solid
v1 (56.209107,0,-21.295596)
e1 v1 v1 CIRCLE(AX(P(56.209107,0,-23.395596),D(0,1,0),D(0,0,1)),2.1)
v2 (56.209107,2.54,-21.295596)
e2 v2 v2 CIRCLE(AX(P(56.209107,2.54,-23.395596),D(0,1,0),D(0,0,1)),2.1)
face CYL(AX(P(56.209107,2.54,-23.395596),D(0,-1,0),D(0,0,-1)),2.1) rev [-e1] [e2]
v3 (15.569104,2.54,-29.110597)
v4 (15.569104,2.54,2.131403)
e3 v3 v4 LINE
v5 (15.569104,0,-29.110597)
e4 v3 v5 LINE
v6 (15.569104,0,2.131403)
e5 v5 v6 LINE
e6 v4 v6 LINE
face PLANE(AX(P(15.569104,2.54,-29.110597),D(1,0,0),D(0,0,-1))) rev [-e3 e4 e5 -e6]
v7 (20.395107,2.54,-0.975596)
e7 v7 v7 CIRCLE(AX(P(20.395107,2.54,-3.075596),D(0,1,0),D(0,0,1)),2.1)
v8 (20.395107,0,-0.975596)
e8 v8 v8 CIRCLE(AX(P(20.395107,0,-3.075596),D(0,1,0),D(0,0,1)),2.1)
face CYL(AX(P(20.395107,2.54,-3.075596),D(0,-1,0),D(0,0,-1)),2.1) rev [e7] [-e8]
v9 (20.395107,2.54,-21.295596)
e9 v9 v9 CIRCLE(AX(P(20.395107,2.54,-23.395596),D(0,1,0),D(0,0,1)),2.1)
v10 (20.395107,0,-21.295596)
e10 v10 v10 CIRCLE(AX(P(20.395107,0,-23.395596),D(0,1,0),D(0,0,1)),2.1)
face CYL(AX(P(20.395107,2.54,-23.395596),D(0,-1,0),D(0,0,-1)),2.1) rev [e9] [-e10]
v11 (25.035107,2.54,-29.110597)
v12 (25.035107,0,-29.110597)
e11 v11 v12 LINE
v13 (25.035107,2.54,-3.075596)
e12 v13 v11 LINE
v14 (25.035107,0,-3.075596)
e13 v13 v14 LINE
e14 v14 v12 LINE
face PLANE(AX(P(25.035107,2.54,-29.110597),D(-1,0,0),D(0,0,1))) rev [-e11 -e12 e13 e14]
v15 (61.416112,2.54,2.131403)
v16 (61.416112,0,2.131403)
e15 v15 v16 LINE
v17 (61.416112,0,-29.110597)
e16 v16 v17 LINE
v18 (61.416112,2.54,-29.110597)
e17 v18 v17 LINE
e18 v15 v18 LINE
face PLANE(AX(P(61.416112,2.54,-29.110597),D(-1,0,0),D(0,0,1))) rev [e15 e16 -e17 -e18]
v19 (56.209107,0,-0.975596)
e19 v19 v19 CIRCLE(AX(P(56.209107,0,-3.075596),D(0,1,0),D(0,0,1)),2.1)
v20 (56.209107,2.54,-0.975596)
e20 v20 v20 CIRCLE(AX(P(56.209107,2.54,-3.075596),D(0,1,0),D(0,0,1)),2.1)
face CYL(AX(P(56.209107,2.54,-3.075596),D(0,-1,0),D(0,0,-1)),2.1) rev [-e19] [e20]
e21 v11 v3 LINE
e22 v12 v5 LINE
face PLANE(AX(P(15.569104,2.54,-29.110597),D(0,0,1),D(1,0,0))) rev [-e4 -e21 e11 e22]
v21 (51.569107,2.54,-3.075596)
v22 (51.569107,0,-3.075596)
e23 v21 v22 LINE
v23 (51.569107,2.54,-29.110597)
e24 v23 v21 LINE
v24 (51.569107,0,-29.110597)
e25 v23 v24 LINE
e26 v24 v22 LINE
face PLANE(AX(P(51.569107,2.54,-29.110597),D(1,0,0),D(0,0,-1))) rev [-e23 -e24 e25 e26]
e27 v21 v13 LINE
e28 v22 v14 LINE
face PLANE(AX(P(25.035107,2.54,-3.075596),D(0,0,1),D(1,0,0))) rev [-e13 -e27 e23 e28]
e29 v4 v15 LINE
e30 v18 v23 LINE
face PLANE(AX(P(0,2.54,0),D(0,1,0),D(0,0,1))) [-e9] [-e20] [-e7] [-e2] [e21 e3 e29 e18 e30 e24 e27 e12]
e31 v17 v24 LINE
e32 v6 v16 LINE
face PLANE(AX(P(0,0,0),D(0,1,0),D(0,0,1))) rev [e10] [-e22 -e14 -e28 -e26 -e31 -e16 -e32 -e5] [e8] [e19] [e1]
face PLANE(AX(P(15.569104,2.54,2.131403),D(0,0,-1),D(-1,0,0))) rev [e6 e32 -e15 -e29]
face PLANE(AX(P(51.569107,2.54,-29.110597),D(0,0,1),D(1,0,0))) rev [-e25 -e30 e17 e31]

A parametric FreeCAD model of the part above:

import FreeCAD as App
import Part
import Sketcher
from FreeCAD import Vector
Q = App.Units.Quantity

doc = App.newDocument("Part")
body = doc.addObject("PartDesign::Body", "Body")

# Sketch on XZ plane
sketch1 = body.newObject("Sketcher::SketchObject", "Sketch")
sketch1.AttachmentSupport = (doc.getObject("XZ_Plane"), [""])
sketch1.MapMode = "FlatFace"
sketch1.addGeometry(Part.LineSegment(Vector(25, -29.1, 0), Vector(15.6, -29.1, 0)), False)
sketch1.addGeometry(Part.LineSegment(Vector(15.6, -29.1, 0), Vector(15.6, 2.1, 0)), False)
sketch1.addGeometry(Part.LineSegment(Vector(15.6, 2.1, 0), Vector(61.4, 2.1, 0)), False)
sketch1.addGeometry(Part.LineSegment(Vector(61.4, 2.1, 0), Vector(61.4, -29.1, 0)), False)
sketch1.addGeometry(Part.LineSegment(Vector(61.4, -29.1, 0), Vector(51.6, -29.1, 0)), False)
sketch1.addGeometry(Part.LineSegment(Vector(51.6, -29.1, 0), Vector(51.6, -3.1, 0)), False)
sketch1.addGeometry(Part.LineSegment(Vector(51.6, -3.1, 0), Vector(25, -3.1, 0)), False)
sketch1.addGeometry(Part.LineSegment(Vector(25, -3.1, 0), Vector(25, -29.1, 0)), False)
sketch1.addGeometry(Part.Circle(Vector(56.2, -3.1, 0), Vector(0, 0, 1), 2.1), False)
sketch1.addGeometry(Part.Circle(Vector(20.4, -3.1, 0), Vector(0, 0, 1), 2.1), False)
sketch1.addGeometry(Part.Circle(Vector(56.2, -23.4, 0), Vector(0, 0, 1), 2.1), False)
sketch1.addGeometry(Part.Circle(Vector(20.4, -23.4, 0), Vector(0, 0, 1), 2.1), False)
sketch1.addConstraint(Sketcher.Constraint("Coincident", 0, 2, 1, 1))
sketch1.addConstraint(Sketcher.Constraint("Coincident", 1, 2, 2, 1))
sketch1.addConstraint(Sketcher.Constraint("Coincident", 2, 2, 3, 1))
sketch1.addConstraint(Sketcher.Constraint("Coincident", 3, 2, 4, 1))
sketch1.addConstraint(Sketcher.Constraint("Coincident", 4, 2, 5, 1))
sketch1.addConstraint(Sketcher.Constraint("Coincident", 5, 2, 6, 1))
sketch1.addConstraint(Sketcher.Constraint("Coincident", 6, 2, 7, 1))
sketch1.addConstraint(Sketcher.Constraint("Coincident", 7, 2, 0, 1))
sketch1.addConstraint(Sketcher.Constraint("Horizontal", 0))
sketch1.addConstraint(Sketcher.Constraint("Vertical", 1))
sketch1.addConstraint(Sketcher.Constraint("Horizontal", 2))
sketch1.addConstraint(Sketcher.Constraint("Vertical", 3))
sketch1.addConstraint(Sketcher.Constraint("Horizontal", 4))
sketch1.addConstraint(Sketcher.Constraint("Vertical", 5))
sketch1.addConstraint(Sketcher.Constraint("Horizontal", 6))
sketch1.addConstraint(Sketcher.Constraint("Vertical", 7))
sketch1.addConstraint(Sketcher.Constraint("Equal", 8, 9))
sketch1.addConstraint(Sketcher.Constraint("Equal", 9, 10))
sketch1.addConstraint(Sketcher.Constraint("Equal", 10, 11))
sketch1.addConstraint(Sketcher.Constraint("Horizontal", 8, 3, 9, 3))
sketch1.addConstraint(Sketcher.Constraint("Horizontal", 10, 3, 11, 3))
sketch1.addConstraint(Sketcher.Constraint("Horizontal", 0, 2, 3, 2))
sketch1.addConstraint(Sketcher.Constraint("Horizontal", 9, 3, 5, 2))
sketch1.addConstraint(Sketcher.Constraint("Vertical", 8, 3, 10, 3))
sketch1.addConstraint(Sketcher.Constraint("Vertical", 9, 3, 11, 3))
sketch1.addConstraint(Sketcher.Constraint("DistanceY", 1, 1, 1, 2, Q("1.23 in")))
sketch1.addConstraint(Sketcher.Constraint("DistanceY", 10, 3, 8, 3, Q("0.8 in")))
sketch1.addConstraint(Sketcher.Constraint("DistanceX", 0, 2, 10, 3, Q("1.6000001 in")))
sketch1.addConstraint(Sketcher.Constraint("Diameter", 8, 4.2))
sketch1.addConstraint(Sketcher.Constraint("DistanceY", 5, 1, 5, 2, Q("1.025 in")))
sketch1.addConstraint(Sketcher.Constraint("DistanceX", 9, 3, 8, 3, Q("1.41 in")))
sketch1.addConstraint(Sketcher.Constraint("DistanceX", 8, 3, 2, 2, Q("0.2050002 in")))
sketch1.addConstraint(Sketcher.Constraint("DistanceX", 6, 2, 6, 1, 26.534))
sketch1.addConstraint(Sketcher.Constraint("DistanceX", 4, 2, 10, 3, 4.64))
sketch1.addConstraint(Sketcher.Constraint("DistanceX", -1, 1, 2, 2, 61.416112))
sketch1.addConstraint(Sketcher.Constraint("DistanceY", 8, 3, -1, 1, 3.075596))
pad1 = body.newObject("PartDesign::Pad", "Pad")
pad1.Profile = sketch1
pad1.Length = Q("0.1 in")
pad1.Reversed = True

doc.recompute()
